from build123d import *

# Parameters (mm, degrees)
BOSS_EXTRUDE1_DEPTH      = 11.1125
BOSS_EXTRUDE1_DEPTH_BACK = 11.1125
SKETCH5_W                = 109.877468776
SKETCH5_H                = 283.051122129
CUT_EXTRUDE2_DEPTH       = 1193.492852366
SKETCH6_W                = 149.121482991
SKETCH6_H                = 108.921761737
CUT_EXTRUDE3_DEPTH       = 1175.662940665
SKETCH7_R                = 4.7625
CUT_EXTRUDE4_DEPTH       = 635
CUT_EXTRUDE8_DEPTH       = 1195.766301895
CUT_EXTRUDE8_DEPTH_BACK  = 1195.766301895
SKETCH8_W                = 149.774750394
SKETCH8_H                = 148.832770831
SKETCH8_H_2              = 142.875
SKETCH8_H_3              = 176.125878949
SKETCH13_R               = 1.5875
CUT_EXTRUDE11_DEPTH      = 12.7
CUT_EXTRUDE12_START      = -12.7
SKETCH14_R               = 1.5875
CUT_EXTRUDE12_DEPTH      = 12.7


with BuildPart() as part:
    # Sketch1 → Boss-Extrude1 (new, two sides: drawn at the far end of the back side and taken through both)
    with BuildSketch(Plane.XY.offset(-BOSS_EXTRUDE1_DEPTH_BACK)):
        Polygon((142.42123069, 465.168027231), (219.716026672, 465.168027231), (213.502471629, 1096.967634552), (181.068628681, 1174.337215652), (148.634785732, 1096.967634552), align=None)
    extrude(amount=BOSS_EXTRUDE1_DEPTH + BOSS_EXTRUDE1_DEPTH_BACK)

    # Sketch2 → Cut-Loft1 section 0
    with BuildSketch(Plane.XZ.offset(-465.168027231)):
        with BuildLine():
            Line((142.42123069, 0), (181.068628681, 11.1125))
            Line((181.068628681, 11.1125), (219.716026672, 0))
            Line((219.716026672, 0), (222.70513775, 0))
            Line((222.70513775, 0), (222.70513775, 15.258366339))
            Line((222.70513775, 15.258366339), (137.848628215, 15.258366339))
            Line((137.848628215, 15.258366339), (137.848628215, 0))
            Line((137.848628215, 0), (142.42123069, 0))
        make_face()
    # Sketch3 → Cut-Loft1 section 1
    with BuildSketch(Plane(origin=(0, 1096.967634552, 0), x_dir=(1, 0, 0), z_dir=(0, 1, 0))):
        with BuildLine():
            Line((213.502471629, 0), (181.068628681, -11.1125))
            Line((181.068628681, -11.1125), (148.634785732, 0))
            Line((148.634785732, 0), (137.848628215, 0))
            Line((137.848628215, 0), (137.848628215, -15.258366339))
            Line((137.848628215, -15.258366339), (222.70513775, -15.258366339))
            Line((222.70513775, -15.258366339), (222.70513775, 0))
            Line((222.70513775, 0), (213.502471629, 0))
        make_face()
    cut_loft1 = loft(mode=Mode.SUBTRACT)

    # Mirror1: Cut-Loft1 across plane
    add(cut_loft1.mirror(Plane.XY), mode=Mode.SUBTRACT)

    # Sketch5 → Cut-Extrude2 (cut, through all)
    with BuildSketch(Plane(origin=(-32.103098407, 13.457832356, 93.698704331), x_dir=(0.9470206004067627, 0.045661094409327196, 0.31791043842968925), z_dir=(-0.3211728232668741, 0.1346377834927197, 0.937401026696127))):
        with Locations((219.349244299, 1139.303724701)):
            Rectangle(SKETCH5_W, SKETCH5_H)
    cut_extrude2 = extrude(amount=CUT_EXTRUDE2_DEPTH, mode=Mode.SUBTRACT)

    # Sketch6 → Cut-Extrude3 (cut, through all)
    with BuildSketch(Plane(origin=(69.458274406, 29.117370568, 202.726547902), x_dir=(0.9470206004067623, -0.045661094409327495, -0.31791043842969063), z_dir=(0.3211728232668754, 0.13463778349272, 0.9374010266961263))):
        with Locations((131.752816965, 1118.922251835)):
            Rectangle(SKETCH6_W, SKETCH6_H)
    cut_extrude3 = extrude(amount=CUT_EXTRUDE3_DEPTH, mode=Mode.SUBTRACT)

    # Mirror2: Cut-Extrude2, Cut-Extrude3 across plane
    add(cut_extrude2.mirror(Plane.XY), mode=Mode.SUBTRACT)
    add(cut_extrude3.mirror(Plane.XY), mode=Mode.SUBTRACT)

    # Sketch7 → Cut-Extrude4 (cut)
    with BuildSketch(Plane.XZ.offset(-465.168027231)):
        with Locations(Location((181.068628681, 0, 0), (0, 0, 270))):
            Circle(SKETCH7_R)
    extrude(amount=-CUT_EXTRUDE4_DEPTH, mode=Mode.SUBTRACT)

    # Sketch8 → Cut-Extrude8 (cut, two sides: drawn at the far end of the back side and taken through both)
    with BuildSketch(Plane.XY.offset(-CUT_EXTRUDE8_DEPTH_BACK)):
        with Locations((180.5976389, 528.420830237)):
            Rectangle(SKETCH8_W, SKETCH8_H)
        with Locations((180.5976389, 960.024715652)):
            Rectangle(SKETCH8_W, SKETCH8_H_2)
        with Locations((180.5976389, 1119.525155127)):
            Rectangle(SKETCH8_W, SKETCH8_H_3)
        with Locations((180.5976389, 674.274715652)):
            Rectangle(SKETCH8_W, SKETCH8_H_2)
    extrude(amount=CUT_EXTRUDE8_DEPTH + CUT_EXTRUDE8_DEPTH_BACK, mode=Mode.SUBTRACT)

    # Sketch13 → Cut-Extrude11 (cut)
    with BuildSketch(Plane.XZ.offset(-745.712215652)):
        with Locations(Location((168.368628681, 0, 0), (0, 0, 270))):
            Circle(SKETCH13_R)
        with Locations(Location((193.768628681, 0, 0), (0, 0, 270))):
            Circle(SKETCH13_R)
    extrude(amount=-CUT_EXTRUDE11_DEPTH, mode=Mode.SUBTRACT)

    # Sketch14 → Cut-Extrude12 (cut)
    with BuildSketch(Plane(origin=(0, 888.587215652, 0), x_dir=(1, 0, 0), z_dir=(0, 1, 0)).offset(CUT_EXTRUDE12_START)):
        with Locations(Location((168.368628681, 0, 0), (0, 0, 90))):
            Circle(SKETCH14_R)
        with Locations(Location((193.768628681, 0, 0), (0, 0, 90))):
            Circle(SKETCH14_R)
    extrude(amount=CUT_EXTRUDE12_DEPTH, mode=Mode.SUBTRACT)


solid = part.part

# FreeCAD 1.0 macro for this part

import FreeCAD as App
import Part
import Sketcher

V = App.Vector
Q = App.Units.Quantity

doc = App.newDocument("Part")
body = doc.addObject("PartDesign::Body", "Body")

# Sketch on XY plane
sketch1 = body.newObject("Sketcher::SketchObject", "Sketch")
sketch1.AttachmentSupport = (doc.getObject("XY_Plane"), [""])
sketch1.MapMode = "FlatFace"
sketch1.addGeometry(Part.LineSegment(V(142, 465, 0), V(220, 465, 0)), False)
sketch1.addGeometry(Part.LineSegment(V(220, 465, 0), V(214, 1097, 0)), False)
sketch1.addGeometry(Part.LineSegment(V(214, 1097, 0), V(181, 1174, 0)), False)
sketch1.addGeometry(Part.LineSegment(V(181, 1174, 0), V(149, 1097, 0)), False)
sketch1.addGeometry(Part.LineSegment(V(149, 1097, 0), V(142, 465, 0)), False)
sketch1.addConstraint(Sketcher.Constraint("Coincident", 0, 2, 1, 1))
sketch1.addConstraint(Sketcher.Constraint("Coincident", 1, 2, 2, 1))
sketch1.addConstraint(Sketcher.Constraint("Coincident", 2, 2, 3, 1))
sketch1.addConstraint(Sketcher.Constraint("Coincident", 3, 2, 4, 1))
sketch1.addConstraint(Sketcher.Constraint("Coincident", 4, 2, 0, 1))
sketch1.addConstraint(Sketcher.Constraint("Horizontal", 0))
sketch1.addConstraint(Sketcher.Constraint("Horizontal", 1, 2, 3, 2))
sketch1.addConstraint(Sketcher.Constraint("Equal", 2, 3))
sketch1.addConstraint(Sketcher.Constraint("Equal", 1, 4))
sketch1.addConstraint(Sketcher.Constraint("Distance", 1, Q("631.830161 mm")))
sketch1.addConstraint(Sketcher.Constraint("DistanceX", 0, 1, 0, 2, Q("77.294796 mm")))
sketch1.addConstraint(Sketcher.Constraint("DistanceX", -1, 1, 1, 2, Q("213.502472 mm")))
sketch1.addConstraint(Sketcher.Constraint("DistanceX", -1, 1, 2, 2, Q("181.068629 mm")))
sketch1.addConstraint(Sketcher.Constraint("DistanceY", 1, 2, 2, 2, Q("77.369581 mm")))
sketch1.addConstraint(Sketcher.Constraint("DistanceY", -1, 1, 0, 2, Q("465.168027 mm")))
pad1 = body.newObject("PartDesign::Pad", "Pad")
pad1.Profile = sketch1
pad1.Type = "TwoLengths"
pad1.Length = Q("0.4375 in")
pad1.Length2 = Q("0.4375 in")

# Sketch on XZ plane
sketch2 = body.newObject("Sketcher::SketchObject", "Sketch001")
sketch2.AttachmentSupport = (doc.getObject("XZ_Plane"), [""])
sketch2.MapMode = "FlatFace"
sketch2.AttachmentOffset = App.Placement(V(0, 0, -465.168027), App.Rotation())
sketch2.addGeometry(Part.LineSegment(V(142.4, 0, 0), V(181.1, 11.1, 0)), False)
sketch2.addGeometry(Part.LineSegment(V(181.1, 11.1, 0), V(219.7, 0, 0)), False)
sketch2.addGeometry(Part.LineSegment(V(219.7, 0, 0), V(222.7, 0, 0)), False)
sketch2.addGeometry(Part.LineSegment(V(222.7, 0, 0), V(222.7, 15.3, 0)), False)
sketch2.addGeometry(Part.LineSegment(V(222.7, 15.3, 0), V(137.8, 15.3, 0)), False)
sketch2.addGeometry(Part.LineSegment(V(137.8, 15.3, 0), V(137.8, 0, 0)), False)
sketch2.addGeometry(Part.LineSegment(V(137.8, 0, 0), V(142.4, 0, 0)), False)
sketch2.addConstraint(Sketcher.Constraint("Coincident", 0, 2, 1, 1))
sketch2.addConstraint(Sketcher.Constraint("Coincident", 1, 2, 2, 1))
sketch2.addConstraint(Sketcher.Constraint("Coincident", 2, 2, 3, 1))
sketch2.addConstraint(Sketcher.Constraint("Coincident", 3, 2, 4, 1))
sketch2.addConstraint(Sketcher.Constraint("Coincident", 4, 2, 5, 1))
sketch2.addConstraint(Sketcher.Constraint("Coincident", 5, 2, 6, 1))
sketch2.addConstraint(Sketcher.Constraint("Coincident", 6, 2, 0, 1))
sketch2.addConstraint(Sketcher.Constraint("Horizontal", 2))
sketch2.addConstraint(Sketcher.Constraint("Vertical", 3))
sketch2.addConstraint(Sketcher.Constraint("Horizontal", 4))
sketch2.addConstraint(Sketcher.Constraint("Vertical", 5))
sketch2.addConstraint(Sketcher.Constraint("Horizontal", 6))
sketch2.addConstraint(Sketcher.Constraint("PointOnObject", 1, 2, -1))
sketch2.addConstraint(Sketcher.Constraint("PointOnObject", 5, 2, -1))
sketch2.addConstraint(Sketcher.Constraint("Equal", 0, 1))
sketch2.addConstraint(Sketcher.Constraint("DistanceY", -1, 1, 0, 2, Q("0.4375 in")))
sketch2.addConstraint(Sketcher.Constraint("DistanceX", 2, 1, 2, 2, Q("2.989111 mm")))
sketch2.addConstraint(Sketcher.Constraint("DistanceX", 4, 2, 4, 1, Q("84.85651 mm")))
sketch2.addConstraint(Sketcher.Constraint("DistanceX", 4, 2, 0, 2, Q("43.22 mm")))
sketch2.addConstraint(Sketcher.Constraint("DistanceY", 3, 1, 3, 2, Q("15.258366 mm")))
sketch2.addConstraint(Sketcher.Constraint("DistanceX", -1, 1, 0, 2, Q("181.068629 mm")))

# Sketch on XZ plane
sketch3 = body.newObject("Sketcher::SketchObject", "Sketch002")
sketch3.AttachmentSupport = (doc.getObject("XZ_Plane"), [""])
sketch3.MapMode = "FlatFace"
sketch3.AttachmentOffset = App.Placement(V(0, 0, -1096.967635), App.Rotation())
sketch3.addGeometry(Part.LineSegment(V(214, 0, 0), V(181, 11, 0)), False)
sketch3.addGeometry(Part.LineSegment(V(181, 11, 0), V(149, 0, 0)), False)
sketch3.addGeometry(Part.LineSegment(V(149, 0, 0), V(138, 0, 0)), False)
sketch3.addGeometry(Part.LineSegment(V(138, 0, 0), V(138, 15, 0)), False)
sketch3.addGeometry(Part.LineSegment(V(138, 15, 0), V(223, 15, 0)), False)
sketch3.addGeometry(Part.LineSegment(V(223, 15, 0), V(223, 0, 0)), False)
sketch3.addGeometry(Part.LineSegment(V(223, 0, 0), V(214, 0, 0)), False)
sketch3.addConstraint(Sketcher.Constraint("Coincident", 0, 2, 1, 1))
sketch3.addConstraint(Sketcher.Constraint("Coincident", 1, 2, 2, 1))
sketch3.addConstraint(Sketcher.Constraint("Coincident", 2, 2, 3, 1))
sketch3.addConstraint(Sketcher.Constraint("Coincident", 3, 2, 4, 1))
sketch3.addConstraint(Sketcher.Constraint("Coincident", 4, 2, 5, 1))
sketch3.addConstraint(Sketcher.Constraint("Coincident", 5, 2, 6, 1))
sketch3.addConstraint(Sketcher.Constraint("Coincident", 6, 2, 0, 1))
sketch3.addConstraint(Sketcher.Constraint("Horizontal", 2))
sketch3.addConstraint(Sketcher.Constraint("Vertical", 3))
sketch3.addConstraint(Sketcher.Constraint("Horizontal", 4))
sketch3.addConstraint(Sketcher.Constraint("Vertical", 5))
sketch3.addConstraint(Sketcher.Constraint("Horizontal", 6))
sketch3.addConstraint(Sketcher.Constraint("PointOnObject", 1, 2, -1))
sketch3.addConstraint(Sketcher.Constraint("PointOnObject", 5, 2, -1))
sketch3.addConstraint(Sketcher.Constraint("Equal", 0, 1))
sketch3.addConstraint(Sketcher.Constraint("DistanceY", -1, 1, 0, 2, Q("0.4375 in")))
sketch3.addConstraint(Sketcher.Constraint("DistanceX", 4, 1, 4, 2, Q("84.85651 mm")))
sketch3.addConstraint(Sketcher.Constraint("DistanceX", 2, 2, 0, 2, Q("43.22 mm")))
sketch3.addConstraint(Sketcher.Constraint("DistanceX", 2, 2, 2, 1, Q("10.786158 mm")))
sketch3.addConstraint(Sketcher.Constraint("DistanceY", 3, 1, 3, 2, Q("15.258366 mm")))
sketch3.addConstraint(Sketcher.Constraint("DistanceX", -1, 1, 0, 2, Q("181.068629 mm")))

subtractiveloft = body.newObject("PartDesign::SubtractiveLoft", "SubtractiveLoft")
subtractiveloft.Profile = sketch2
subtractiveloft.Sections = [sketch3]
doc.recompute()

mirrored = body.newObject("PartDesign::Mirrored", "Mirrored")
mirrored.Originals = [subtractiveloft]
mirrored.MirrorPlane = (doc.getObject("XY_Plane"), [""])
body.Tip = mirrored

# Sketch on an angled plane
sketch4 = body.newObject("Sketcher::SketchObject", "Sketch003")
sketch4.Placement = App.Placement(V(-32.103098, 13.457832, 93.698704), App.Rotation(V(0.9470206, 0.045661094, 0.317910438), V(0, 0.989842276, -0.142169857), V(-0.321172823, 0.134637783, 0.937401027), "ZXY"))
sketch4.addGeometry(Part.LineSegment(V(164, 1281, 0), V(164, 998, 0)), False)
sketch4.addGeometry(Part.LineSegment(V(164, 998, 0), V(274, 998, 0)), False)
sketch4.addGeometry(Part.LineSegment(V(274, 998, 0), V(274, 1281, 0)), False)
sketch4.addGeometry(Part.LineSegment(V(274, 1281, 0), V(164, 1281, 0)), False)
sketch4.addConstraint(Sketcher.Constraint("Coincident", 0, 2, 1, 1))
sketch4.addConstraint(Sketcher.Constraint("Coincident", 1, 2, 2, 1))
sketch4.addConstraint(Sketcher.Constraint("Coincident", 2, 2, 3, 1))
sketch4.addConstraint(Sketcher.Constraint("Coincident", 3, 2, 0, 1))
sketch4.addConstraint(Sketcher.Constraint("Vertical", 0))
sketch4.addConstraint(Sketcher.Constraint("Horizontal", 1))
sketch4.addConstraint(Sketcher.Constraint("Vertical", 2))
sketch4.addConstraint(Sketcher.Constraint("Horizontal", 3))
sketch4.addConstraint(Sketcher.Constraint("DistanceX", 1, 1, 1, 2, Q("109.877469 mm")))
sketch4.addConstraint(Sketcher.Constraint("DistanceY", 0, 2, 0, 1, Q("283.051122 mm")))
sketch4.addConstraint(Sketcher.Constraint("DistanceX", -1, 1, 0, 2, Q("164.41051 mm")))
sketch4.addConstraint(Sketcher.Constraint("DistanceY", -1, 1, 0, 2, Q("997.778163 mm")))
pocket1 = body.newObject("PartDesign::Pocket", "Pocket")
pocket1.Profile = sketch4
pocket1.Type = "ThroughAll"
pocket1.Reversed = True

# Sketch on an angled plane
sketch5 = body.newObject("Sketcher::SketchObject", "Sketch004")
sketch5.Placement = App.Placement(V(69.458274, 29.117371, 202.726548), App.Rotation(V(0.9470206, -0.045661094, -0.317910438), V(0, 0.989842276, -0.142169857), V(0.321172823, 0.134637783, 0.937401027), "ZXY"))
sketch5.addGeometry(Part.LineSegment(V(57, 1173, 0), V(57, 1064, 0)), False)
sketch5.addGeometry(Part.LineSegment(V(57, 1064, 0), V(206, 1064, 0)), False)
sketch5.addGeometry(Part.LineSegment(V(206, 1064, 0), V(206, 1173, 0)), False)
sketch5.addGeometry(Part.LineSegment(V(206, 1173, 0), V(57, 1173, 0)), False)
sketch5.addConstraint(Sketcher.Constraint("Coincident", 0, 2, 1, 1))
sketch5.addConstraint(Sketcher.Constraint("Coincident", 1, 2, 2, 1))
sketch5.addConstraint(Sketcher.Constraint("Coincident", 2, 2, 3, 1))
sketch5.addConstraint(Sketcher.Constraint("Coincident", 3, 2, 0, 1))
sketch5.addConstraint(Sketcher.Constraint("Vertical", 0))
sketch5.addConstraint(Sketcher.Constraint("Horizontal", 1))
sketch5.addConstraint(Sketcher.Constraint("Vertical", 2))
sketch5.addConstraint(Sketcher.Constraint("Horizontal", 3))
sketch5.addConstraint(Sketcher.Constraint("DistanceY", 0, 2, 0, 1, Q("108.921762 mm")))
sketch5.addConstraint(Sketcher.Constraint("DistanceX", 1, 1, 1, 2, Q("149.121483 mm")))
sketch5.addConstraint(Sketcher.Constraint("DistanceY", -1, 1, 0, 2, Q("1064.46137 mm")))
sketch5.addConstraint(Sketcher.Constraint("DistanceX", -1, 1, 1, 2, Q("206.313558 mm")))
pocket2 = body.newObject("PartDesign::Pocket", "Pocket001")
pocket2.Profile = sketch5
pocket2.Type = "ThroughAll"
pocket2.Reversed = True
doc.recompute()

mirrored2 = body.newObject("PartDesign::Mirrored", "Mirrored001")
mirrored2.Originals = [pocket1, pocket2]
mirrored2.MirrorPlane = (doc.getObject("XY_Plane"), [""])
body.Tip = mirrored2

# Sketch on XZ plane
sketch6 = body.newObject("Sketcher::SketchObject", "Sketch005")
sketch6.AttachmentSupport = (doc.getObject("XZ_Plane"), [""])
sketch6.MapMode = "FlatFace"
sketch6.AttachmentOffset = App.Placement(V(0, 0, -465.168027), App.Rotation())
sketch6.addGeometry(Part.Circle(V(181.1, 0, 0), V(0, 0, 1), 4.8), False)
sketch6.addConstraint(Sketcher.Constraint("PointOnObject", 0, 3, -1))
sketch6.addConstraint(Sketcher.Constraint("Diameter", 0, Q("0.375 in")))
sketch6.addConstraint(Sketcher.Constraint("DistanceX", -1, 1, 0, 3, Q("181.068629 mm")))
pocket3 = body.newObject("PartDesign::Pocket", "Pocket002")
pocket3.Profile = sketch6
pocket3.Length = Q("25 in")

# Sketch on XY plane
sketch7 = body.newObject("Sketcher::SketchObject", "Sketch006")
sketch7.AttachmentSupport = (doc.getObject("XY_Plane"), [""])
sketch7.MapMode = "FlatFace"
sketch7.addGeometry(Part.LineSegment(V(106, 454, 0), V(255, 454, 0)), False)
sketch7.addGeometry(Part.LineSegment(V(255, 454, 0), V(255, 746, 0)), False)
sketch7.addGeometry(Part.LineSegment(V(255, 746, 0), V(106, 746, 0)), False)
sketch7.addGeometry(Part.LineSegment(V(106, 746, 0), V(106, 454, 0)), False)
sketch7.addGeometry(Part.LineSegment(V(106, 889, 0), V(255, 889, 0)), False)
sketch7.addGeometry(Part.LineSegment(V(255, 889, 0), V(255, 1208, 0)), False)
sketch7.addGeometry(Part.LineSegment(V(255, 1208, 0), V(106, 1208, 0)), False)
sketch7.addGeometry(Part.LineSegment(V(106, 1208, 0), V(106, 889, 0)), False)
sketch7.addConstraint(Sketcher.Constraint("Coincident", 0, 2, 1, 1))
sketch7.addConstraint(Sketcher.Constraint("Coincident", 1, 2, 2, 1))
sketch7.addConstraint(Sketcher.Constraint("Coincident", 2, 2, 3, 1))
sketch7.addConstraint(Sketcher.Constraint("Coincident", 3, 2, 0, 1))
sketch7.addConstraint(Sketcher.Constraint("Coincident", 4, 2, 5, 1))
sketch7.addConstraint(Sketcher.Constraint("Coincident", 5, 2, 6, 1))
sketch7.addConstraint(Sketcher.Constraint("Coincident", 6, 2, 7, 1))
sketch7.addConstraint(Sketcher.Constraint("Coincident", 7, 2, 4, 1))
sketch7.addConstraint(Sketcher.Constraint("Horizontal", 0))
sketch7.addConstraint(Sketcher.Constraint("Vertical", 1))
sketch7.addConstraint(Sketcher.Constraint("Horizontal", 2))
sketch7.addConstraint(Sketcher.Constraint("Vertical", 3))
sketch7.addConstraint(Sketcher.Constraint("Horizontal", 4))
sketch7.addConstraint(Sketcher.Constraint("Vertical", 5))
sketch7.addConstraint(Sketcher.Constraint("Horizontal", 6))
sketch7.addConstraint(Sketcher.Constraint("Vertical", 7))
sketch7.addConstraint(Sketcher.Constraint("Vertical", 1, 2, 4, 2))
sketch7.addConstraint(Sketcher.Constraint("Vertical", 3, 2, 6, 2))
sketch7.addConstraint(Sketcher.Constraint("DistanceY", 1, 2, 4, 2, Q("5.625 in")))
sketch7.addConstraint(Sketcher.Constraint("DistanceX", 0, 1, 0, 2, Q("149.77475 mm")))
sketch7.addConstraint(Sketcher.Constraint("DistanceY", 1, 1, 1, 2, Q("291.707771 mm")))
sketch7.addConstraint(Sketcher.Constraint("DistanceY", 5, 1, 5, 2, Q("319.000879 mm")))
sketch7.addConstraint(Sketcher.Constraint("DistanceX", -1, 1, 0, 2, Q("255.485014 mm")))
sketch7.addConstraint(Sketcher.Constraint("DistanceY", -1, 1, 0, 2, Q("454.004445 mm")))
pocket4 = body.newObject("PartDesign::Pocket", "Pocket003")
pocket4.Profile = sketch7
pocket4.Type = "ThroughAll"
pocket4.Midplane = True

# Sketch on XZ plane
sketch8 = body.newObject("Sketcher::SketchObject", "Sketch007")
sketch8.AttachmentSupport = (doc.getObject("XZ_Plane"), [""])
sketch8.MapMode = "FlatFace"
sketch8.AttachmentOffset = App.Placement(V(0, 0, -745.712216), App.Rotation())
sketch8.addGeometry(Part.Circle(V(168.4, 0, 0), V(0, 0, 1), 1.6), False)
sketch8.addGeometry(Part.Circle(V(193.8, 0, 0), V(0, 0, 1), 1.6), False)
sketch8.addConstraint(Sketcher.Constraint("Equal", 0, 1))
sketch8.addConstraint(Sketcher.Constraint("PointOnObject", 0, 3, -1))
sketch8.addConstraint(Sketcher.Constraint("PointOnObject", 1, 3, -1))
sketch8.addConstraint(Sketcher.Constraint("Diameter", 0, Q("0.125 in")))
sketch8.addConstraint(Sketcher.Constraint("DistanceX", 0, 3, 1, 3, Q("1 in")))
sketch8.addConstraint(Sketcher.Constraint("DistanceX", -1, 1, 0, 3, Q("168.368629 mm")))
pocket5 = body.newObject("PartDesign::Pocket", "Pocket004")
pocket5.Profile = sketch8
pocket5.Length = Q("0.5 in")

# Sketch on XZ plane
sketch9 = body.newObject("Sketcher::SketchObject", "Sketch008")
sketch9.AttachmentSupport = (doc.getObject("XZ_Plane"), [""])
sketch9.MapMode = "FlatFace"
sketch9.AttachmentOffset = App.Placement(V(0, 0, -875.887216), App.Rotation())
sketch9.addGeometry(Part.Circle(V(168.4, 0, 0), V(0, 0, 1), 1.6), False)
sketch9.addGeometry(Part.Circle(V(193.8, 0, 0), V(0, 0, 1), 1.6), False)
sketch9.addConstraint(Sketcher.Constraint("Equal", 0, 1))
sketch9.addConstraint(Sketcher.Constraint("PointOnObject", 0, 3, -1))
sketch9.addConstraint(Sketcher.Constraint("PointOnObject", 1, 3, -1))
sketch9.addConstraint(Sketcher.Constraint("Diameter", 0, Q("0.125 in")))
sketch9.addConstraint(Sketcher.Constraint("DistanceX", 0, 3, 1, 3, Q("1 in")))
sketch9.addConstraint(Sketcher.Constraint("DistanceX", -1, 1, 0, 3, Q("168.368629 mm")))
pocket6 = body.newObject("PartDesign::Pocket", "Pocket005")
pocket6.Profile = sketch9
pocket6.Length = Q("0.5 in")

doc.recompute()
